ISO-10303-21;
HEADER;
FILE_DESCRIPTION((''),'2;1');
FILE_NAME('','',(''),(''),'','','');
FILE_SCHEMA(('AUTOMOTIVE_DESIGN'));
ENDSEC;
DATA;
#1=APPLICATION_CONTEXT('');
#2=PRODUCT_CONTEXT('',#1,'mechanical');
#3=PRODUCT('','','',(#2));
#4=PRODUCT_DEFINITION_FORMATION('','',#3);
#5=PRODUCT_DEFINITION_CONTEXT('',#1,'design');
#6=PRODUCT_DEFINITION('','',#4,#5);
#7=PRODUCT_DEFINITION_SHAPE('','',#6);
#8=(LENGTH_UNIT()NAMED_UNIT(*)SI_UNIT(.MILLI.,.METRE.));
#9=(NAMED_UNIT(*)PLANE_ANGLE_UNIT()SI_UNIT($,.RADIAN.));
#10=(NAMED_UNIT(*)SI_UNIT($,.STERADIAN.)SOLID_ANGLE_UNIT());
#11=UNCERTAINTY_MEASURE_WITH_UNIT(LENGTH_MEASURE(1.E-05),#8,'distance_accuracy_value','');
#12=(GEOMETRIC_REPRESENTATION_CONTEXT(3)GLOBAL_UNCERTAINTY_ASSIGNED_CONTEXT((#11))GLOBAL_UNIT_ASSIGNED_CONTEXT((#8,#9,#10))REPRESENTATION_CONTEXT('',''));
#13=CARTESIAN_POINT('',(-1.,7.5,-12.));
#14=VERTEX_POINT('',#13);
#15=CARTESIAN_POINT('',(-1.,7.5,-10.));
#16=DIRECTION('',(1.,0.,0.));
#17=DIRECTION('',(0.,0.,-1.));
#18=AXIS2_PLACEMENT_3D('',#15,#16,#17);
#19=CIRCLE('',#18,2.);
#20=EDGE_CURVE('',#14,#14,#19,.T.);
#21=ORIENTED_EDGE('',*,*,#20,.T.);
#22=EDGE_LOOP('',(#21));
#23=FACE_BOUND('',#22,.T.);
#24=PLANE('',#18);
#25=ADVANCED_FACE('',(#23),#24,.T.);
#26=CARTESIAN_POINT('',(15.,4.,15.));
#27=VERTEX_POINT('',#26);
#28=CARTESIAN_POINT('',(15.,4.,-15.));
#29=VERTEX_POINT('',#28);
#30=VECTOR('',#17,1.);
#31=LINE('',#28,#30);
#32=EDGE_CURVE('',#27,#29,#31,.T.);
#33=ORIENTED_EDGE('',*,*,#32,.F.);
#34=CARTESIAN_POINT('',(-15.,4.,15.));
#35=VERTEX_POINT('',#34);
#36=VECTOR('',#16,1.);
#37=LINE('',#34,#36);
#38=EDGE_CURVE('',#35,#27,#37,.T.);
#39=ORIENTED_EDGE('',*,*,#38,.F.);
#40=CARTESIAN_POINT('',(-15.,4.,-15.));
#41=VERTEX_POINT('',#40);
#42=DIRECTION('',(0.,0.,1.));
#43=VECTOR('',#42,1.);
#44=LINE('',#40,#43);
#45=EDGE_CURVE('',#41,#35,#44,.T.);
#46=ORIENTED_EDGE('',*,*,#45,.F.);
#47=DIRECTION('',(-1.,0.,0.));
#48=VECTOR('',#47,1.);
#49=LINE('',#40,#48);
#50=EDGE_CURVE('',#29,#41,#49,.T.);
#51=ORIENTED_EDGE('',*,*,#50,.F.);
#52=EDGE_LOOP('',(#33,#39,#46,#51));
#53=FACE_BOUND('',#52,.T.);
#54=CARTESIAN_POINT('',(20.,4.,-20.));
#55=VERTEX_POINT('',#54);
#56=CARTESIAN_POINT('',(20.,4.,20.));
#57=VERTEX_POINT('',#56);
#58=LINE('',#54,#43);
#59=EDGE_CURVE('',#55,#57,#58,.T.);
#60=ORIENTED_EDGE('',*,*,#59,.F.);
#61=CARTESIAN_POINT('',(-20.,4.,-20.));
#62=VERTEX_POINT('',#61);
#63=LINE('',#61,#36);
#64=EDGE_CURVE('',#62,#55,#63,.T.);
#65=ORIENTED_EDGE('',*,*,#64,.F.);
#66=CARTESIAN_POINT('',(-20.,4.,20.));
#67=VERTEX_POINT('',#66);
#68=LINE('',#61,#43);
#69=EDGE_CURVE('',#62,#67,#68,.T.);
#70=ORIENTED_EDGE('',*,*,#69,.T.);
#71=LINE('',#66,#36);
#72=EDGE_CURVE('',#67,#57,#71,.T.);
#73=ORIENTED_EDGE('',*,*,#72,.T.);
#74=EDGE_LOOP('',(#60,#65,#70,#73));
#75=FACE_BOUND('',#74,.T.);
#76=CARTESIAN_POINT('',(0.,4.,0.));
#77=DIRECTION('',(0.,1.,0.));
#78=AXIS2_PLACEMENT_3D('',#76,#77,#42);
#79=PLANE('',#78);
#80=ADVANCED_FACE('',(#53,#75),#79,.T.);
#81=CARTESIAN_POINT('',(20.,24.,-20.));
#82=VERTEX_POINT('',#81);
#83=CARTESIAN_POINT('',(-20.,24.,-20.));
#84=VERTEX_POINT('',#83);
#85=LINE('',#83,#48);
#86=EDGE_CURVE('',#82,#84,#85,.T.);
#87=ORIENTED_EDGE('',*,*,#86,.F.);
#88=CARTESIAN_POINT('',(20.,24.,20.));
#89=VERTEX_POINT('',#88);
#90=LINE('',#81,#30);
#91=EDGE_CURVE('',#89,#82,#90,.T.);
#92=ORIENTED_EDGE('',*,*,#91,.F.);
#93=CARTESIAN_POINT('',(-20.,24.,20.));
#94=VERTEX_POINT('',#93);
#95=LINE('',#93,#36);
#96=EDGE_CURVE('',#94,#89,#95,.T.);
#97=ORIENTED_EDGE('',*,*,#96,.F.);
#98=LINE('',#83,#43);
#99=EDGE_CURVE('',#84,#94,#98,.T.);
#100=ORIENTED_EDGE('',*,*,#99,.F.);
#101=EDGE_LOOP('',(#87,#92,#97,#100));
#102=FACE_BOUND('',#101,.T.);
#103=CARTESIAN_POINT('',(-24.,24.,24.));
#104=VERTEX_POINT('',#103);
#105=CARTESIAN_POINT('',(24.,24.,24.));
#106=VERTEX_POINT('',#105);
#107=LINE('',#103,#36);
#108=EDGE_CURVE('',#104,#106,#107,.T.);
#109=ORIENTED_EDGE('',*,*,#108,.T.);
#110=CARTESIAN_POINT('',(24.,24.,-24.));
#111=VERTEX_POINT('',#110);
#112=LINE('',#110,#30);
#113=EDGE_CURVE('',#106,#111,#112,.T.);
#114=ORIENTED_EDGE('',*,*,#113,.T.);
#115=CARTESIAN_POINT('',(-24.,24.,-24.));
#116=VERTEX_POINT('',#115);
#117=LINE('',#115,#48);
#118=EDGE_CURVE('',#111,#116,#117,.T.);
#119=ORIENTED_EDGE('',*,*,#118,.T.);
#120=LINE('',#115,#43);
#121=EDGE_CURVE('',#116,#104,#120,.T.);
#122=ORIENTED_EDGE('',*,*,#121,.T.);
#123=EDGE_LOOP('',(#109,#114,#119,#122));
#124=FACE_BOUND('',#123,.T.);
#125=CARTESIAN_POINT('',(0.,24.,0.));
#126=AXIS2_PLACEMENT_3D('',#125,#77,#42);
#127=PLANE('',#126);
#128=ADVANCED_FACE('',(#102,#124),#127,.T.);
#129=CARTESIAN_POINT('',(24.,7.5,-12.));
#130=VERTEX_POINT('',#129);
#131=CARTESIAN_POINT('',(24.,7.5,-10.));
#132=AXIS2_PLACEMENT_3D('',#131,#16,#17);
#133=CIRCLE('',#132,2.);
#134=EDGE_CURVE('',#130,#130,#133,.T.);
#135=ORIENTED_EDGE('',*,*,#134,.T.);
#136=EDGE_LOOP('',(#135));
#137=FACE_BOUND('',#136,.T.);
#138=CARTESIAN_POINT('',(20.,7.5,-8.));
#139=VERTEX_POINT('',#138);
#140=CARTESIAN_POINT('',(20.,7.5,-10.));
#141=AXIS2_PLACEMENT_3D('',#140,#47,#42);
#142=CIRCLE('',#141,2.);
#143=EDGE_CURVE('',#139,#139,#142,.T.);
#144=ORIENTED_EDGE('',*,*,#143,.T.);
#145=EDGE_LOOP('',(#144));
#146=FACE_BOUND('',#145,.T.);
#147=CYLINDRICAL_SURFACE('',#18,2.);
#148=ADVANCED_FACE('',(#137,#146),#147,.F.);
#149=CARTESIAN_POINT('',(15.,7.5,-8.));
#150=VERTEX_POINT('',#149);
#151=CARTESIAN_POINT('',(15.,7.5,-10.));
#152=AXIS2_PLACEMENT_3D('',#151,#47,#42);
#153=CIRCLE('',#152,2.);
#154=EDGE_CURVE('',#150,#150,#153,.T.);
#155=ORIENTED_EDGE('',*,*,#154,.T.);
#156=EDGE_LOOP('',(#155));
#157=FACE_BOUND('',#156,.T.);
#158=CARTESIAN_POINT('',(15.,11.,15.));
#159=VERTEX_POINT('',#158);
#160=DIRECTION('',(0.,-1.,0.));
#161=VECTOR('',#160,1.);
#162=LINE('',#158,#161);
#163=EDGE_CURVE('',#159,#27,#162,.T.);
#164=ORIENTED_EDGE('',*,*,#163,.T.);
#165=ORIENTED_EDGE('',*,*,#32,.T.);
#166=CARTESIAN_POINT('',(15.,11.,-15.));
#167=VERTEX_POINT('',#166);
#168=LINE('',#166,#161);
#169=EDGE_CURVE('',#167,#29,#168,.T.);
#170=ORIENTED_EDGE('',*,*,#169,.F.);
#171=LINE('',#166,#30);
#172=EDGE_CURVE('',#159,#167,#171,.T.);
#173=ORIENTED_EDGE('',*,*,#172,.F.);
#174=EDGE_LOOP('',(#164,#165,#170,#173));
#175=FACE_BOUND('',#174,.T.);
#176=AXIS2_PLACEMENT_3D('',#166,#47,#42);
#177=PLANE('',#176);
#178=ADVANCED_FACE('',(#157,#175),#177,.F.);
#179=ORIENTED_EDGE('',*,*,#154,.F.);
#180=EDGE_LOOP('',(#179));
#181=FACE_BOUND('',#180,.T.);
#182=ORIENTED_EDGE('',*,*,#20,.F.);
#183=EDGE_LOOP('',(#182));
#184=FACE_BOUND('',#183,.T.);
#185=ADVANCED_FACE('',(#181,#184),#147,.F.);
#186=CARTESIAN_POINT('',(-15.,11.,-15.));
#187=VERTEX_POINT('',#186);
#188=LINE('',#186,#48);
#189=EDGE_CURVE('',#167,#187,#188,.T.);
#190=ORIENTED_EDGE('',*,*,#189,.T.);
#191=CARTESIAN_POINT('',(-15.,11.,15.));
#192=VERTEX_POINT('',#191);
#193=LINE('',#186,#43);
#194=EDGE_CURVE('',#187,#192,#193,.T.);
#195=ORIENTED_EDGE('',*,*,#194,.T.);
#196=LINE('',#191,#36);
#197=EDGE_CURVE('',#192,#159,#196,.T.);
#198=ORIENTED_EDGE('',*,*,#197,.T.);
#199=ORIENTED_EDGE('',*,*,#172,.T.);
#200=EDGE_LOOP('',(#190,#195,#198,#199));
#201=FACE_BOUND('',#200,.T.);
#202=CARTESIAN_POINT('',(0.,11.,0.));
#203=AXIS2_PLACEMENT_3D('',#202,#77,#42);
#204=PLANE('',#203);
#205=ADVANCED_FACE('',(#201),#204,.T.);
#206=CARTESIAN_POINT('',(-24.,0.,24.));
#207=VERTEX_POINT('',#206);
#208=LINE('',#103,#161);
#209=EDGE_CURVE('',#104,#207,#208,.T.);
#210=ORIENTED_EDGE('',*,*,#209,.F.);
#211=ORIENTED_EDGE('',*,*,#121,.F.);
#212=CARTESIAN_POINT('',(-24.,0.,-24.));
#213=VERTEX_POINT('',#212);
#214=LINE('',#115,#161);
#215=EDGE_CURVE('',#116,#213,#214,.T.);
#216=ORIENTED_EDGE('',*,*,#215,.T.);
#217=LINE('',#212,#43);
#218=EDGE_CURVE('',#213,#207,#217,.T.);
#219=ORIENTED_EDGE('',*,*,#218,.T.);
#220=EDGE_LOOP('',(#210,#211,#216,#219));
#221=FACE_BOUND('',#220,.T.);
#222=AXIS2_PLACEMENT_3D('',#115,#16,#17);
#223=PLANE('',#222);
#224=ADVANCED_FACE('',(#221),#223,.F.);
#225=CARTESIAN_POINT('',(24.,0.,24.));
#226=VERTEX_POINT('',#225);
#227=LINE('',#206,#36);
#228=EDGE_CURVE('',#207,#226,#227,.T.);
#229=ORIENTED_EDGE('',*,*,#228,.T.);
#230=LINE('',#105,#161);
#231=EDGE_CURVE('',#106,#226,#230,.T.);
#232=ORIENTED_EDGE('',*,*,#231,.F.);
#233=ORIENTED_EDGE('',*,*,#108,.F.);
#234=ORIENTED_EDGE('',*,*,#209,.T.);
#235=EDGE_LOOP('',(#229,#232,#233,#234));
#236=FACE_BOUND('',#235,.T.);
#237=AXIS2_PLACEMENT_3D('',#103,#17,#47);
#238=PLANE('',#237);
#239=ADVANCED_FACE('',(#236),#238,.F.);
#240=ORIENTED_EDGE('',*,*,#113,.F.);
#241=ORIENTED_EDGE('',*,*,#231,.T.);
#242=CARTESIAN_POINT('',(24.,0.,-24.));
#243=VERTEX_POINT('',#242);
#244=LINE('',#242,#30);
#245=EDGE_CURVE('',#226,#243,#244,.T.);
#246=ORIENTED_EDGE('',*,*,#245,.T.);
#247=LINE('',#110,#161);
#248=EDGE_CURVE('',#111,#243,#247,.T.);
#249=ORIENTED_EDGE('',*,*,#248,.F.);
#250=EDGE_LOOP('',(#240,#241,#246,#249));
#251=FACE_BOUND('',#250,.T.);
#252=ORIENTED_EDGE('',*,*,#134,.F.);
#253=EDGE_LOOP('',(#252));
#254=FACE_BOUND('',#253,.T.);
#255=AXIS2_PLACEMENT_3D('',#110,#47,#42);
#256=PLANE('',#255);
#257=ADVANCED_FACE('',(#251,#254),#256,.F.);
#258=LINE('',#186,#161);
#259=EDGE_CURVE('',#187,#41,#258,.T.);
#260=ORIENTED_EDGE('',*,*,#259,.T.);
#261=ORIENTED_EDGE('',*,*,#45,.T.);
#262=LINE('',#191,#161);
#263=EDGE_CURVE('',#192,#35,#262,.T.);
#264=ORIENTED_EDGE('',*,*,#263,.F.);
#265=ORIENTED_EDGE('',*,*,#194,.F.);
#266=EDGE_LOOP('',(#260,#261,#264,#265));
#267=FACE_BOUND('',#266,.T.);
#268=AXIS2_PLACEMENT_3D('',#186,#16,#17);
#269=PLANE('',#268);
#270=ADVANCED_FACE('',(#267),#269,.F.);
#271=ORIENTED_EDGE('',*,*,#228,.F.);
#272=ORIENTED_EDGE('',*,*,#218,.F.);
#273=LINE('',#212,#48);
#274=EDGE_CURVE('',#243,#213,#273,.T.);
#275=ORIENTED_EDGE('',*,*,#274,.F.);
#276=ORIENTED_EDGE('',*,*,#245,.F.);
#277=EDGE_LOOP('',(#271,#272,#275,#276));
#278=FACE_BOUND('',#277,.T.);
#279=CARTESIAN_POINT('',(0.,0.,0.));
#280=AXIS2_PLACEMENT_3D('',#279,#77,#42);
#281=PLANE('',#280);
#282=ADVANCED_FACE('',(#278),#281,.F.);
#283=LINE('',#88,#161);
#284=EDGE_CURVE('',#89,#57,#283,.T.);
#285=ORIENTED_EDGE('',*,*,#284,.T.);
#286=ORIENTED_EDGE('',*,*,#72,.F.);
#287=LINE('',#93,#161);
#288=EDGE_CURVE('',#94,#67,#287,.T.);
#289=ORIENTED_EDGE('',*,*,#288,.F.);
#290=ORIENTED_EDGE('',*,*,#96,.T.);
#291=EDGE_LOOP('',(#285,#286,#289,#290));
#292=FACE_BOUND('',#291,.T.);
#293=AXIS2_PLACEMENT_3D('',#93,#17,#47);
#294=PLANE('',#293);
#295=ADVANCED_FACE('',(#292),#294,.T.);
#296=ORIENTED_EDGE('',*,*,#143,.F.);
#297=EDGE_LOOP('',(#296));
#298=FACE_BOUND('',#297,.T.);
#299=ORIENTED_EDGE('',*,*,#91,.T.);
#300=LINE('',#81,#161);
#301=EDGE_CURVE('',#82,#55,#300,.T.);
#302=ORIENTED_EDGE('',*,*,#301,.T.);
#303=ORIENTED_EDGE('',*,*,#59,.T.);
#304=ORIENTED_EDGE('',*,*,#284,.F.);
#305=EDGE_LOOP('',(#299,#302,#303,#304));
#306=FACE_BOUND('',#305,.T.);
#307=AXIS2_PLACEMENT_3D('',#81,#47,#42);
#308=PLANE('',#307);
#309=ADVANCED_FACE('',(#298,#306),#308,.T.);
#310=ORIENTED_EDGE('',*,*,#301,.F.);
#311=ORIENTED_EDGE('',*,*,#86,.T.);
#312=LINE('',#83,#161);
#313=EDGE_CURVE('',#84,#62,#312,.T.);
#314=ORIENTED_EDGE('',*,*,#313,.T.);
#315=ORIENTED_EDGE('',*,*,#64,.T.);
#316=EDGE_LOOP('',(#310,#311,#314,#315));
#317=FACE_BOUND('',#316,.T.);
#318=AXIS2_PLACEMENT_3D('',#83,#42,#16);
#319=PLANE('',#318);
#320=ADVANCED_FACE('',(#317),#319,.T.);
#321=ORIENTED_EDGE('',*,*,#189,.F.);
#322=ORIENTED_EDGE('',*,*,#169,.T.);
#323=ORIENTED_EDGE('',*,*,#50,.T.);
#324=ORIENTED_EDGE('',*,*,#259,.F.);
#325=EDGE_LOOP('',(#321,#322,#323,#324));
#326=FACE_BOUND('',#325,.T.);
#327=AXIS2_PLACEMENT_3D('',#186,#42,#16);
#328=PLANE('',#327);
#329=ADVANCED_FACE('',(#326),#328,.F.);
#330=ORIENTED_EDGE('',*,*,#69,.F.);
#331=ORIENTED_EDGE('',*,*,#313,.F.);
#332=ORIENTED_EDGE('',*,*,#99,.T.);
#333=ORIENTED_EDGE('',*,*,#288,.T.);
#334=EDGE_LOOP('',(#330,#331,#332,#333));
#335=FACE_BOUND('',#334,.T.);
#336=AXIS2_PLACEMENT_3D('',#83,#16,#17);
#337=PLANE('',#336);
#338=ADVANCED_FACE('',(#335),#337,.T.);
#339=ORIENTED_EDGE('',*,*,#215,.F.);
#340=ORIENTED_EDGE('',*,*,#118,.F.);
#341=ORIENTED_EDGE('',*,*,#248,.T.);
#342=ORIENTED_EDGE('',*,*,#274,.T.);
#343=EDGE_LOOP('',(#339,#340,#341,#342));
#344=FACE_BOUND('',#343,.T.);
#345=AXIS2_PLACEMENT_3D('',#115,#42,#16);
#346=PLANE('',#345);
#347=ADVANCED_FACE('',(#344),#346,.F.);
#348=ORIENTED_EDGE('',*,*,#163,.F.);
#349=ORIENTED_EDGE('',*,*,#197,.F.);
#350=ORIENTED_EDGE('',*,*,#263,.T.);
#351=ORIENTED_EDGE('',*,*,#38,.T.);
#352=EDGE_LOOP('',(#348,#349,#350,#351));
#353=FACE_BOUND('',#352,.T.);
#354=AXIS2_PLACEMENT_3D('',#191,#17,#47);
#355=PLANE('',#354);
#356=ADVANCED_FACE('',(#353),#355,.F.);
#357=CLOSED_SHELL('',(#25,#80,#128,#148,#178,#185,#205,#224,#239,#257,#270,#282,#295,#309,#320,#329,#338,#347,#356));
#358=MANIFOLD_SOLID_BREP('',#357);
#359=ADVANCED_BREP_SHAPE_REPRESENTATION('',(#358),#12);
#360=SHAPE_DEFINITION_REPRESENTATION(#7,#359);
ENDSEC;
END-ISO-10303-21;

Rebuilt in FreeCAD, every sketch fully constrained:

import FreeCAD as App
import Part
import Sketcher

V = App.Vector

doc = App.newDocument("Part")
body = doc.addObject("PartDesign::Body", "Body")

# Sketch on XZ plane
sketch1 = body.newObject("Sketcher::SketchObject", "Sketch")
sketch1.AttachmentSupport = (doc.getObject("XZ_Plane"), [""])
sketch1.MapMode = "FlatFace"
sketch1.addGeometry([
    Part.LineSegment(V(-24, -24, 0), V(-24, 24, 0)),  # 0
    Part.LineSegment(V(-24, 24, 0), V(24, 24, 0)),  # 1
    Part.LineSegment(V(24, 24, 0), V(24, -24, 0)),  # 2
    Part.LineSegment(V(24, -24, 0), V(-24, -24, 0)),  # 3
    Part.LineSegment(V(20, 20, 0), V(-20, 20, 0)),  # 4
    Part.LineSegment(V(-20, 20, 0), V(-20, -20, 0)),  # 5
    Part.LineSegment(V(-20, -20, 0), V(20, -20, 0)),  # 6
    Part.LineSegment(V(20, -20, 0), V(20, 20, 0)),  # 7
], False)
sketch1.addConstraint([
    Sketcher.Constraint("Coincident", 0, 2, 1, 1),
    Sketcher.Constraint("Coincident", 1, 2, 2, 1),
    Sketcher.Constraint("Coincident", 2, 2, 3, 1),
    Sketcher.Constraint("Coincident", 3, 2, 0, 1),
    Sketcher.Constraint("Coincident", 4, 2, 5, 1),
    Sketcher.Constraint("Coincident", 5, 2, 6, 1),
    Sketcher.Constraint("Coincident", 6, 2, 7, 1),
    Sketcher.Constraint("Coincident", 7, 2, 4, 1),
    Sketcher.Constraint("Vertical", 0),
    Sketcher.Constraint("Horizontal", 1),
    Sketcher.Constraint("Vertical", 2),
    Sketcher.Constraint("Horizontal", 3),
    Sketcher.Constraint("Horizontal", 4),
    Sketcher.Constraint("Vertical", 5),
    Sketcher.Constraint("Horizontal", 6),
    Sketcher.Constraint("Vertical", 7),
    Sketcher.Constraint("Symmetric", 0, 2, 2, 2, -1, 1),
    Sketcher.Constraint("Symmetric", 4, 2, 6, 2, -1, 1),
    Sketcher.Constraint("Equal", 3, 0),
    Sketcher.Constraint("Equal", 6, 5),
    Sketcher.Constraint("DistanceX", 1, 1, 1, 2, 48.0),
    Sketcher.Constraint("DistanceX", 4, 2, 4, 1, 40.0),
])
pad1 = body.newObject("PartDesign::Pad", "Pad")
pad1.Profile = sketch1
pad1.Length = 24
pad1.Reversed = True

# Sketch on XZ plane
sketch2 = body.newObject("Sketcher::SketchObject", "Sketch001")
sketch2.AttachmentSupport = (doc.getObject("XZ_Plane"), [""])
sketch2.MapMode = "FlatFace"
sketch2.addGeometry([
    Part.LineSegment(V(-20, -20, 0), V(-20, 20, 0)),
    Part.LineSegment(V(-20, 20, 0), V(20, 20, 0)),
    Part.LineSegment(V(20, 20, 0), V(20, -20, 0)),
    Part.LineSegment(V(20, -20, 0), V(-20, -20, 0)),
], False)
sketch2.addConstraint([
    Sketcher.Constraint("Coincident", 0, 2, 1, 1),
    Sketcher.Constraint("Coincident", 1, 2, 2, 1),
    Sketcher.Constraint("Coincident", 2, 2, 3, 1),
    Sketcher.Constraint("Coincident", 3, 2, 0, 1),
    Sketcher.Constraint("Vertical", 0),
    Sketcher.Constraint("Horizontal", 1),
    Sketcher.Constraint("Vertical", 2),
    Sketcher.Constraint("Horizontal", 3),
    Sketcher.Constraint("Symmetric", 0, 2, 2, 2, -1, 1),
    Sketcher.Constraint("Equal", 3, 0),
    Sketcher.Constraint("DistanceX", 1, 1, 1, 2, 40.0),
])
pad2 = body.newObject("PartDesign::Pad", "Pad001")
pad2.Profile = sketch2
pad2.Length = 4
pad2.Reversed = True

# Sketch on XZ plane
sketch3 = body.newObject("Sketcher::SketchObject", "Sketch002")
sketch3.AttachmentSupport = (doc.getObject("XZ_Plane"), [""])
sketch3.MapMode = "FlatFace"
sketch3.AttachmentOffset = App.Placement(V(0, 0, -4), App.Rotation())
sketch3.addGeometry([
    Part.LineSegment(V(-15, -15, 0), V(-15, 15, 0)),
    Part.LineSegment(V(-15, 15, 0), V(15, 15, 0)),
    Part.LineSegment(V(15, 15, 0), V(15, -15, 0)),
    Part.LineSegment(V(15, -15, 0), V(-15, -15, 0)),
], False)
sketch3.addConstraint([
    Sketcher.Constraint("Coincident", 0, 2, 1, 1),
    Sketcher.Constraint("Coincident", 1, 2, 2, 1),
    Sketcher.Constraint("Coincident", 2, 2, 3, 1),
    Sketcher.Constraint("Coincident", 3, 2, 0, 1),
    Sketcher.Constraint("Vertical", 0),
    Sketcher.Constraint("Horizontal", 1),
    Sketcher.Constraint("Vertical", 2),
    Sketcher.Constraint("Horizontal", 3),
    Sketcher.Constraint("Symmetric", 0, 2, 2, 2, -1, 1),
    Sketcher.Constraint("Equal", 3, 0),
    Sketcher.Constraint("DistanceX", 1, 1, 1, 2, 30.0),
])
pad3 = body.newObject("PartDesign::Pad", "Pad002")
pad3.Profile = sketch3
pad3.Length = 7
pad3.Reversed = True

# Sketch on YZ plane
sketch4 = body.newObject("Sketcher::SketchObject", "Sketch003")
sketch4.AttachmentSupport = (doc.getObject("YZ_Plane"), [""])
sketch4.MapMode = "FlatFace"
sketch4.AttachmentOffset = App.Placement(V(0, 0, 24), App.Rotation())
sketch4.addGeometry(Part.Circle(V(7.5, -10, 0), V(0, 0, 1), 2), False)
sketch4.addConstraint([
    Sketcher.Constraint("Diameter", 0, 4.0),
    Sketcher.Constraint("DistanceY", 0, 3, -1, 1, 10.0),
    Sketcher.Constraint("DistanceX", -1, 1, 0, 3, 7.5),
])
pocket1 = body.newObject("PartDesign::Pocket", "Pocket")
pocket1.Profile = sketch4
pocket1.Length = 25

doc.recompute()
